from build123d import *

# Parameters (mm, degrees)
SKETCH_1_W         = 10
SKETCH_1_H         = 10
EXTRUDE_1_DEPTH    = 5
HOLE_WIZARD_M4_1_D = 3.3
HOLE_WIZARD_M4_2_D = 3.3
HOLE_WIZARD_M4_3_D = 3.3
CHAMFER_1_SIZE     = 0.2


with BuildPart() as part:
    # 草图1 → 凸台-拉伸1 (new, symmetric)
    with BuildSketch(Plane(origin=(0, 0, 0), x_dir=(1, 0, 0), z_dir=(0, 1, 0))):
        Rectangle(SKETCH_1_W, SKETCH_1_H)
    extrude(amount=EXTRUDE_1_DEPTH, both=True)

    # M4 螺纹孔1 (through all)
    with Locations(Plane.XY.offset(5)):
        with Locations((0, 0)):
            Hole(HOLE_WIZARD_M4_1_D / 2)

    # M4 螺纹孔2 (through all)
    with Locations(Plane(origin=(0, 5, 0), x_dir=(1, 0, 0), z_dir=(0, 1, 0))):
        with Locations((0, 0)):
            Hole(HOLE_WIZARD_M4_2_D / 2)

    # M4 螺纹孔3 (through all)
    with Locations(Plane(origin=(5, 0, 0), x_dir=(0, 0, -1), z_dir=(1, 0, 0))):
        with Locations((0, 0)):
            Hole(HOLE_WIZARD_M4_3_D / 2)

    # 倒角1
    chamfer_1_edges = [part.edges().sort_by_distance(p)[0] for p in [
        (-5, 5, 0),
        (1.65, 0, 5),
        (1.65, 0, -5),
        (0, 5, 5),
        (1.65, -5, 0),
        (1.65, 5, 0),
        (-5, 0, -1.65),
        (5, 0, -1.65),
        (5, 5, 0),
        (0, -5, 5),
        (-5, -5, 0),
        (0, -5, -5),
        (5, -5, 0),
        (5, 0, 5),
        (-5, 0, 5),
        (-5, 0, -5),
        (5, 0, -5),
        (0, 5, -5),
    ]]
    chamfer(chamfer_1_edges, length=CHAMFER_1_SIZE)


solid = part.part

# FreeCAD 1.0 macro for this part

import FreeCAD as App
import Part
import Sketcher

V = App.Vector


def edges_at(feature, points):
    """Names of the edges that pass closest to the given points."""
    edges = feature.Shape.Edges
    near = lambda p: min(range(len(edges)), key=lambda i: edges[i].distToShape(Part.Vertex(*p))[0])
    return sorted({f"Edge{near(p) + 1}" for p in points})

doc = App.newDocument("Part")
body = doc.addObject("PartDesign::Body", "Body")

# Sketch on XZ plane
sketch1 = body.newObject("Sketcher::SketchObject", "Sketch")
sketch1.AttachmentSupport = (doc.getObject("XZ_Plane"), [""])
sketch1.MapMode = "FlatFace"
sketch1.addGeometry([
    Part.LineSegment(V(-5, -5, 0), V(-5, 5, 0)),
    Part.LineSegment(V(-5, 5, 0), V(5, 5, 0)),
    Part.LineSegment(V(5, 5, 0), V(5, -5, 0)),
    Part.LineSegment(V(5, -5, 0), V(-5, -5, 0)),
], False)
sketch1.addConstraint([
    Sketcher.Constraint("Coincident", 0, 2, 1, 1),
    Sketcher.Constraint("Coincident", 1, 2, 2, 1),
    Sketcher.Constraint("Coincident", 2, 2, 3, 1),
    Sketcher.Constraint("Coincident", 3, 2, 0, 1),
    Sketcher.Constraint("Vertical", 0),
    Sketcher.Constraint("Horizontal", 1),
    Sketcher.Constraint("Vertical", 2),
    Sketcher.Constraint("Horizontal", 3),
    Sketcher.Constraint("Symmetric", 0, 2, 2, 2, -1, 1),
    Sketcher.Constraint("Equal", 3, 0),
    Sketcher.Constraint("DistanceX", 1, 1, 1, 2, 10.0),
])
pad1 = body.newObject("PartDesign::Pad", "Pad")
pad1.Profile = sketch1
pad1.Length = 10
pad1.Midplane = True

# Sketch on XY plane
sketch2 = body.newObject("Sketcher::SketchObject", "Sketch001")
sketch2.AttachmentSupport = (doc.getObject("XY_Plane"), [""])
sketch2.MapMode = "FlatFace"
sketch2.AttachmentOffset = App.Placement(V(0, 0, 5), App.Rotation())
sketch2.addGeometry(Part.Circle(V(0, 0, 0), V(0, 0, 1), 1.6), False)
sketch2.addConstraint([
    Sketcher.Constraint("Coincident", 0, 3, -1, 1),
    Sketcher.Constraint("Diameter", 0, 3.3),
])
doc.recompute()
hole = body.newObject("PartDesign::Hole", "Hole")
hole.Profile = sketch2
hole.ThreadType = "None"
hole.Diameter = 3.3
hole.DepthType = "ThroughAll"

# Sketch on XZ plane
sketch3 = body.newObject("Sketcher::SketchObject", "Sketch002")
sketch3.AttachmentSupport = (doc.getObject("XZ_Plane"), [""])
sketch3.MapMode = "FlatFace"
sketch3.AttachmentOffset = App.Placement(V(0, 0, -5), App.Rotation())
sketch3.addGeometry(Part.Circle(V(0, 0, 0), V(0, 0, 1), 1.6), False)
sketch3.addConstraint([
    Sketcher.Constraint("Coincident", 0, 3, -1, 1),
    Sketcher.Constraint("Diameter", 0, 3.3),
])
doc.recompute()
hole2 = body.newObject("PartDesign::Hole", "Hole001")
hole2.Profile = sketch3
hole2.ThreadType = "None"
hole2.Diameter = 3.3
hole2.DepthType = "ThroughAll"
hole2.Reversed = True

# Sketch on YZ plane
sketch4 = body.newObject("Sketcher::SketchObject", "Sketch003")
sketch4.AttachmentSupport = (doc.getObject("YZ_Plane"), [""])
sketch4.MapMode = "FlatFace"
sketch4.AttachmentOffset = App.Placement(V(0, 0, 5), App.Rotation())
sketch4.addGeometry(Part.Circle(V(0, 0, 0), V(0, 0, 1), 1.6), False)
sketch4.addConstraint([
    Sketcher.Constraint("Coincident", 0, 3, -1, 1),
    Sketcher.Constraint("Diameter", 0, 3.3),
])
doc.recompute()
hole3 = body.newObject("PartDesign::Hole", "Hole002")
hole3.Profile = sketch4
hole3.ThreadType = "None"
hole3.Diameter = 3.3
hole3.DepthType = "ThroughAll"
doc.recompute()

chamfer = body.newObject("PartDesign::Chamfer", "Chamfer")
chamfer.Base = (hole3, edges_at(hole3, [
    (-5, 5, 0),
    (1.65, 0, 5),
    (1.65, 0, -5),
    (0, 5, 5),
    (1.65, -5, 0),
    (1.65, 5, 0),
    (-5, 0, -1.65),
    (5, 0, -1.65),
    (5, 5, 0),
    (0, -5, 5),
    (-5, -5, 0),
    (0, -5, -5),
    (5, -5, 0),
    (5, 0, 5),
    (-5, 0, 5),
    (-5, 0, -5),
    (5, 0, -5),
    (0, 5, -5),
]))
chamfer.Size = 0.2

doc.recompute()
